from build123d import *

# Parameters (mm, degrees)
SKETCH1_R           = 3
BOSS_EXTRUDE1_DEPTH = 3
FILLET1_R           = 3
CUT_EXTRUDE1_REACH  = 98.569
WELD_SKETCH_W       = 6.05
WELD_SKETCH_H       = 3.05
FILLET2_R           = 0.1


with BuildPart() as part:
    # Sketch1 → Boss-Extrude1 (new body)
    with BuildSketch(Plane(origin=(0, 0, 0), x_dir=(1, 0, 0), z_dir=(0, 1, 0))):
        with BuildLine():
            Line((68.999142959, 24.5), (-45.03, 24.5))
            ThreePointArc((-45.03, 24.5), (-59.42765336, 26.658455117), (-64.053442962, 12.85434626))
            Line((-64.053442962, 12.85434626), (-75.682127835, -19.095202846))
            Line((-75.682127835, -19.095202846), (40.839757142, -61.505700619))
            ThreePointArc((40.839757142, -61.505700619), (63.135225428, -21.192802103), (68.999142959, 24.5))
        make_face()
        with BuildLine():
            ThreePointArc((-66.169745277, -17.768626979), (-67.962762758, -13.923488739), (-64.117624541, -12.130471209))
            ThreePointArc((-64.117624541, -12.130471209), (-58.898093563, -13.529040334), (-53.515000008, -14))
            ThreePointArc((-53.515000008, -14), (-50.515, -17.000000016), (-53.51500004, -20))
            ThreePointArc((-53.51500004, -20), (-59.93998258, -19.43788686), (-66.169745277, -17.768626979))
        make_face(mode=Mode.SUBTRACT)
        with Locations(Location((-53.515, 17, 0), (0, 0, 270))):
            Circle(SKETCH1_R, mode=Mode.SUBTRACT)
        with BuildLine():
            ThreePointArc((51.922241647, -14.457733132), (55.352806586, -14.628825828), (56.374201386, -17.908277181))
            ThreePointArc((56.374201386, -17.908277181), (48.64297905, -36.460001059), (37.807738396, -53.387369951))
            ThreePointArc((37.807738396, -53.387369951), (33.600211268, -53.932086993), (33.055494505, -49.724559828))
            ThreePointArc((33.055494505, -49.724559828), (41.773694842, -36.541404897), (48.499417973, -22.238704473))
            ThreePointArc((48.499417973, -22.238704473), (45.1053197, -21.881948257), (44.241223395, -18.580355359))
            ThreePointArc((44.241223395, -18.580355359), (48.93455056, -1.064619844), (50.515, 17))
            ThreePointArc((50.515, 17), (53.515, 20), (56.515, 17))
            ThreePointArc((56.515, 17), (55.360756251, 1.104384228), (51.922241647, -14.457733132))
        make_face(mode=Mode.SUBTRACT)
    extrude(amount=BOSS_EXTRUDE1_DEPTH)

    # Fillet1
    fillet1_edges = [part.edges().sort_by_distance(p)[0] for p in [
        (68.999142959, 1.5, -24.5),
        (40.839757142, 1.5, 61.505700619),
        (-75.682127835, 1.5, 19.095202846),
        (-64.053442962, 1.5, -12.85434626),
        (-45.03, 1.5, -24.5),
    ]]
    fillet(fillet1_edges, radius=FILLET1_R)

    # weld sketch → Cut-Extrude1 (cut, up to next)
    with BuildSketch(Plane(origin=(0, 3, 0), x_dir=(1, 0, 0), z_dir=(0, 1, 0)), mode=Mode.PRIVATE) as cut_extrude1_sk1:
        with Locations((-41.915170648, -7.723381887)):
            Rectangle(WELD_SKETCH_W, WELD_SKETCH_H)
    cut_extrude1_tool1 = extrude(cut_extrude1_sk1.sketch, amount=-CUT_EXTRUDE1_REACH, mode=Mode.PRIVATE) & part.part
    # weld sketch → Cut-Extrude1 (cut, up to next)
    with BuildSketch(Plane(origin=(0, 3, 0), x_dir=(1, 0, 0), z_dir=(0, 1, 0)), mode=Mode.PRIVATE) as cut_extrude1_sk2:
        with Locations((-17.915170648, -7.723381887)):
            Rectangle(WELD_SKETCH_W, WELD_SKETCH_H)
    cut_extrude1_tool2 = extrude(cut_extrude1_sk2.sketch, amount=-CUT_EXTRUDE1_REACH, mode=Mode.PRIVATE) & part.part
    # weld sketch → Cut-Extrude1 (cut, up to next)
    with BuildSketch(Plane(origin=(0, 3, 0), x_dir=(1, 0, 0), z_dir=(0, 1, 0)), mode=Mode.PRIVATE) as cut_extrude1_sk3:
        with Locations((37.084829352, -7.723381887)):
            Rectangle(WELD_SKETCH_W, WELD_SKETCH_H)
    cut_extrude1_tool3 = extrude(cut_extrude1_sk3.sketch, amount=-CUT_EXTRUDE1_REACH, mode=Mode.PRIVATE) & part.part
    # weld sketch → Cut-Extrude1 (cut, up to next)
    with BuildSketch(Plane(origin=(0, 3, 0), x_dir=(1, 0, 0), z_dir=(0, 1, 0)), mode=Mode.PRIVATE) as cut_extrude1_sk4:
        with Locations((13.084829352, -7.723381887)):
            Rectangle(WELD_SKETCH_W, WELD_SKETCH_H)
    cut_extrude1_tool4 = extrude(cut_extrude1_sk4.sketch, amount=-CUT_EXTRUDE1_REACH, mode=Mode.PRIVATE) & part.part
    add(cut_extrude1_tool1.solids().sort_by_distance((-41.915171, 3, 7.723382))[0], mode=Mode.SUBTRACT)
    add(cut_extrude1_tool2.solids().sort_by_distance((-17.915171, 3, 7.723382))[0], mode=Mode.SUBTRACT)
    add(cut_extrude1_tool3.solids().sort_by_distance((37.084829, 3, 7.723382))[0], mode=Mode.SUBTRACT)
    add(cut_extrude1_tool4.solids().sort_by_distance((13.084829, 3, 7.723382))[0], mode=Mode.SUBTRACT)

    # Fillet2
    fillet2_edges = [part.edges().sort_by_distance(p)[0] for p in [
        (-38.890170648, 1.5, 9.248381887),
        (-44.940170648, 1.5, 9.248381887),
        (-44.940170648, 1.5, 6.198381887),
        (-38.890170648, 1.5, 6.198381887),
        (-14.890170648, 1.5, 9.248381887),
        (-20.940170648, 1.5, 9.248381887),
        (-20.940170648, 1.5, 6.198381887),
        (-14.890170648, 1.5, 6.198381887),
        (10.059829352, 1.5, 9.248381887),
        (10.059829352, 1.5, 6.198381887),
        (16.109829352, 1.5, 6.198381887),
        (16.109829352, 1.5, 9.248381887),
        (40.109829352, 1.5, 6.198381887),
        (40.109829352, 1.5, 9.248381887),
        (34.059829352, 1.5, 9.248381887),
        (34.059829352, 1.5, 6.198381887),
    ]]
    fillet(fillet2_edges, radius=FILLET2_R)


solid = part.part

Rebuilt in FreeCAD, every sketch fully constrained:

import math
import FreeCAD as App
import Part
import Sketcher

V = App.Vector
Q = App.Units.Quantity


def edges_at(feature, points):
    """Names of the edges that pass closest to the given points."""
    edges = feature.Shape.Edges
    near = lambda p: min(range(len(edges)), key=lambda i: edges[i].distToShape(Part.Vertex(*p))[0])
    return sorted({f"Edge{near(p) + 1}" for p in points})


def add_polygon(sketch, points):
    """Adds a closed chain of lines whose ends are joined by coincident constraints."""
    first, n = sketch.GeometryCount, len(points)
    for a, b in zip(points, points[1:] + points[:1]):
        sketch.addGeometry(Part.LineSegment(App.Vector(*a, 0), App.Vector(*b, 0)), False)
    for i in range(n):
        sketch.addConstraint(Sketcher.Constraint("Coincident", first + i, 2, first + (i + 1) % n, 1))

doc = App.newDocument("Part")
body = doc.addObject("PartDesign::Body", "Body")

sketch1 = body.newObject("Sketcher::SketchObject", "Sketch")
sketch1.AttachmentSupport = (doc.getObject("XZ_Plane"), [""])
sketch1.MapMode = "FlatFace"
sketch1.addGeometry([
    Part.LineSegment(V(69, -24.5, 0), V(-45, -24.5, 0)),
    Part.ArcOfCircle(Part.Circle(V(-53.5, -17, 0), V(0, 0, 1), 11.3), math.radians(159), math.radians(319)),
    Part.LineSegment(V(-64.1, -12.9, 0), V(-75.7, 19.1, 0)),
    Part.LineSegment(V(-75.7, 19.1, 0), V(40.8, 61.5, 0)),
    Part.ArcOfCircle(Part.Circle(V(-53.5, -17, 0), V(0, 0, 1), 122.7), math.radians(-4), math.radians(40)),
    Part.ArcOfCircle(Part.Circle(V(-53.5, -17, 0), V(0, 0, 1), 37), math.radians(90), math.radians(110)),
    Part.ArcOfCircle(Part.Circle(V(-65.1, 14.9, 0), V(0, 0, 1), 3), math.radians(110), math.radians(290)),
    Part.ArcOfCircle(Part.Circle(V(-53.5, -17, 0), V(0, 0, 1), 31), math.radians(90), math.radians(110)),
    Part.ArcOfCircle(Part.Circle(V(-53.5, 17, 0), V(0, 0, 1), 3), math.radians(-90), math.radians(90)),
    Part.Circle(V(-53.5, -17, 0), V(0, 0, 1), 3),
    Part.ArcOfCircle(Part.Circle(V(-53.5, -17, 0), V(0, 0, 1), 110), math.radians(0), math.radians(16.61)),
    Part.ArcOfCircle(Part.Circle(V(53.5, 17, 0), V(0, 0, 1), 3), math.radians(-122), math.radians(18)),
    Part.ArcOfCircle(Part.Circle(V(-53.5, -17, 0), V(0, 0, 1), 115.3), math.radians(17.62), math.radians(37.62)),
    Part.ArcOfCircle(Part.Circle(V(35.4, 51.6, 0), V(0, 0, 1), 3), math.radians(38), math.radians(218)),
    Part.ArcOfCircle(Part.Circle(V(-53.5, -17, 0), V(0, 0, 1), 109.3), math.radians(21.04), math.radians(37.62)),
    Part.ArcOfCircle(Part.Circle(V(47.1, 19.6, 0), V(0, 0, 1), 3), math.radians(61), math.radians(200)),
    Part.ArcOfCircle(Part.Circle(V(-53.5, -17, 0), V(0, 0, 1), 104), math.radians(0), math.radians(20)),
    Part.ArcOfCircle(Part.Circle(V(53.5, -17, 0), V(0, 0, 1), 3), math.radians(180), math.radians(360)),
], False)
sketch1.addConstraint([
    Sketcher.Constraint("Coincident", 0, 2, 1, 2),
    Sketcher.Constraint("Coincident", 1, 1, 2, 1),
    Sketcher.Constraint("Coincident", 2, 2, 3, 1),
    Sketcher.Constraint("Coincident", 3, 2, 4, 2),
    Sketcher.Constraint("Coincident", 4, 1, 0, 1),
    Sketcher.Constraint("Tangent", 5, 2, 6, 1),
    Sketcher.Constraint("Tangent", 6, 2, 7, 2),
    Sketcher.Constraint("Tangent", 7, 1, 8, 1),
    Sketcher.Constraint("Tangent", 8, 2, 5, 1),
    Sketcher.Constraint("Coincident", 10, 2, 11, 1),
    Sketcher.Constraint("Tangent", 11, 2, 12, 1),
    Sketcher.Constraint("Tangent", 12, 2, 13, 1),
    Sketcher.Constraint("Tangent", 13, 2, 14, 2),
    Sketcher.Constraint("Coincident", 14, 1, 15, 1),
    Sketcher.Constraint("Tangent", 15, 2, 16, 2),
    Sketcher.Constraint("Tangent", 16, 1, 17, 1),
    Sketcher.Constraint("Tangent", 17, 2, 10, 1),
    Sketcher.Constraint("Horizontal", 0),
    Sketcher.Constraint("Coincident", 4, 3, 1, 3),
    Sketcher.Constraint("Coincident", 5, 3, 1, 3),
    Sketcher.Constraint("Coincident", 7, 3, 1, 3),
    Sketcher.Constraint("Coincident", 9, 3, 1, 3),
    Sketcher.Constraint("Coincident", 10, 3, 1, 3),
    Sketcher.Constraint("Coincident", 12, 3, 1, 3),
    Sketcher.Constraint("Coincident", 14, 3, 1, 3),
    Sketcher.Constraint("Coincident", 16, 3, 1, 3),
    Sketcher.Constraint("Equal", 8, 9),
    Sketcher.Constraint("Equal", 9, 11),
    Sketcher.Constraint("Equal", 11, 13),
    Sketcher.Constraint("Equal", 13, 15),
    Sketcher.Constraint("Equal", 15, 17),
    Sketcher.Constraint("Symmetric", 1, 3, 11, 3, -1, 1),
    Sketcher.Constraint("Symmetric", 8, 3, 17, 3, -1, 1),
    Sketcher.Constraint("Symmetric", 8, 3, 11, 3, -2),
    Sketcher.Constraint("Perpendicular", 2, 3),
    Sketcher.Constraint("Diameter", 9, Q("6 mm")),
    Sketcher.Constraint("Radius", 5, Q("37 mm")),
    Sketcher.Constraint("Angle", 2, Q("110 deg")),
    Sketcher.Constraint("Radius", 10, Q("110.03 mm")),
    Sketcher.Constraint("Distance", 2, Q("34 mm")),
    Sketcher.Constraint("Distance", 3, Q("124 mm")),
    Sketcher.Constraint("DistanceY", 0, 2, -1, 1, Q("24.5 mm")),
    Sketcher.Constraint("DistanceX", 0, 2, -1, 1, Q("45.03 mm")),
    Sketcher.Constraint("Radius", 4, Q("122.743494 mm")),
    Sketcher.Constraint("DistanceX", -1, 1, 15, 3, Q("47.060301 mm")),
    Sketcher.Constraint("DistanceX", 6, 3, 13, 3, Q("100.575301 mm")),
    Sketcher.Constraint("DistanceY", -1, 1, 6, 3, Q("14.949549 mm")),
])
pad1 = body.newObject("PartDesign::Pad", "Pad")
pad1.Profile = sketch1
pad1.Length = 3
pad1.Reversed = True
doc.recompute()

fillet = body.newObject("PartDesign::Fillet", "Fillet")
fillet.Base = (pad1, edges_at(pad1, [
    (68.999, 1.5, -24.5),
    (40.84, 1.5, 61.506),
    (-75.682, 1.5, 19.095),
    (-64.053, 1.5, -12.854),
    (-45.03, 1.5, -24.5),
]))
fillet.Radius = 3

sketch2 = body.newObject("Sketcher::SketchObject", "Sketch001")
sketch2.AttachmentSupport = (doc.getObject("XZ_Plane"), [""])
sketch2.MapMode = "FlatFace"
sketch2.AttachmentOffset = App.Placement(V(0, 0, -3), App.Rotation())
add_polygon(sketch2, [(-44.9, 6.2), (-44.9, 9.2), (-38.9, 9.2), (-38.9, 6.2)])
sketch2.addConstraint([
    Sketcher.Constraint("Vertical", 0),
    Sketcher.Constraint("Horizontal", 1),
    Sketcher.Constraint("Vertical", 2),
    Sketcher.Constraint("Horizontal", 3),
    Sketcher.Constraint("DistanceX", 1, 1, 1, 2, Q("6.05 mm")),
    Sketcher.Constraint("DistanceY", 0, 1, 0, 2, Q("3.05 mm")),
    Sketcher.Constraint("DistanceX", 0, 2, -1, 1, Q("44.940171 mm")),
    Sketcher.Constraint("DistanceY", -1, 1, 0, 2, Q("9.248382 mm")),
])
pocket1 = body.newObject("PartDesign::Pocket", "Pocket")
pocket1.Profile = sketch2
pocket1.Type = "UpToFirst"
pocket1.Reversed = True

sketch3 = body.newObject("Sketcher::SketchObject", "Sketch002")
sketch3.AttachmentSupport = (doc.getObject("XZ_Plane"), [""])
sketch3.MapMode = "FlatFace"
sketch3.AttachmentOffset = App.Placement(V(0, 0, -3), App.Rotation())
add_polygon(sketch3, [(-20.9, 6.2), (-20.9, 9.2), (-14.9, 9.2), (-14.9, 6.2)])
sketch3.addConstraint([
    Sketcher.Constraint("Vertical", 0),
    Sketcher.Constraint("Horizontal", 1),
    Sketcher.Constraint("Vertical", 2),
    Sketcher.Constraint("Horizontal", 3),
    Sketcher.Constraint("DistanceX", 1, 1, 1, 2, Q("6.05 mm")),
    Sketcher.Constraint("DistanceY", 0, 1, 0, 2, Q("3.05 mm")),
    Sketcher.Constraint("DistanceX", 0, 2, -1, 1, Q("20.940171 mm")),
    Sketcher.Constraint("DistanceY", -1, 1, 0, 2, Q("9.248382 mm")),
])
pocket2 = body.newObject("PartDesign::Pocket", "Pocket001")
pocket2.Profile = sketch3
pocket2.Type = "UpToFirst"
pocket2.Reversed = True

sketch4 = body.newObject("Sketcher::SketchObject", "Sketch003")
sketch4.AttachmentSupport = (doc.getObject("XZ_Plane"), [""])
sketch4.MapMode = "FlatFace"
sketch4.AttachmentOffset = App.Placement(V(0, 0, -3), App.Rotation())
add_polygon(sketch4, [(34.1, 6.2), (34.1, 9.2), (40.1, 9.2), (40.1, 6.2)])
sketch4.addConstraint([
    Sketcher.Constraint("Vertical", 0),
    Sketcher.Constraint("Horizontal", 1),
    Sketcher.Constraint("Vertical", 2),
    Sketcher.Constraint("Horizontal", 3),
    Sketcher.Constraint("DistanceX", 1, 1, 1, 2, Q("6.05 mm")),
    Sketcher.Constraint("DistanceY", 0, 1, 0, 2, Q("3.05 mm")),
    Sketcher.Constraint("DistanceX", -1, 1, 0, 2, Q("34.059829 mm")),
    Sketcher.Constraint("DistanceY", -1, 1, 0, 2, Q("9.248382 mm")),
])
pocket3 = body.newObject("PartDesign::Pocket", "Pocket002")
pocket3.Profile = sketch4
pocket3.Type = "UpToFirst"
pocket3.Reversed = True

sketch5 = body.newObject("Sketcher::SketchObject", "Sketch004")
sketch5.AttachmentSupport = (doc.getObject("XZ_Plane"), [""])
sketch5.MapMode = "FlatFace"
sketch5.AttachmentOffset = App.Placement(V(0, 0, -3), App.Rotation())
add_polygon(sketch5, [(10.1, 6.2), (10.1, 9.2), (16.1, 9.2), (16.1, 6.2)])
sketch5.addConstraint([
    Sketcher.Constraint("Vertical", 0),
    Sketcher.Constraint("Horizontal", 1),
    Sketcher.Constraint("Vertical", 2),
    Sketcher.Constraint("Horizontal", 3),
    Sketcher.Constraint("DistanceX", 1, 1, 1, 2, Q("6.05 mm")),
    Sketcher.Constraint("DistanceY", 0, 1, 0, 2, Q("3.05 mm")),
    Sketcher.Constraint("DistanceX", -1, 1, 0, 2, Q("10.059829 mm")),
    Sketcher.Constraint("DistanceY", -1, 1, 0, 2, Q("9.248382 mm")),
])
pocket4 = body.newObject("PartDesign::Pocket", "Pocket003")
pocket4.Profile = sketch5
pocket4.Type = "UpToFirst"
pocket4.Reversed = True
doc.recompute()

fillet2 = body.newObject("PartDesign::Fillet", "Fillet001")
fillet2.Base = (pocket4, edges_at(pocket4, [
    (-38.89, 1.5, 9.248),
    (-44.94, 1.5, 9.248),
    (-44.94, 1.5, 6.198),
    (-38.89, 1.5, 6.198),
    (-14.89, 1.5, 9.248),
    (-20.94, 1.5, 9.248),
    (-20.94, 1.5, 6.198),
    (-14.89, 1.5, 6.198),
    (10.06, 1.5, 9.248),
    (10.06, 1.5, 6.198),
    (16.11, 1.5, 6.198),
    (16.11, 1.5, 9.248),
    (40.11, 1.5, 6.198),
    (40.11, 1.5, 9.248),
    (34.06, 1.5, 9.248),
    (34.06, 1.5, 6.198),
]))
fillet2.Radius = 0.1

doc.recompute()
